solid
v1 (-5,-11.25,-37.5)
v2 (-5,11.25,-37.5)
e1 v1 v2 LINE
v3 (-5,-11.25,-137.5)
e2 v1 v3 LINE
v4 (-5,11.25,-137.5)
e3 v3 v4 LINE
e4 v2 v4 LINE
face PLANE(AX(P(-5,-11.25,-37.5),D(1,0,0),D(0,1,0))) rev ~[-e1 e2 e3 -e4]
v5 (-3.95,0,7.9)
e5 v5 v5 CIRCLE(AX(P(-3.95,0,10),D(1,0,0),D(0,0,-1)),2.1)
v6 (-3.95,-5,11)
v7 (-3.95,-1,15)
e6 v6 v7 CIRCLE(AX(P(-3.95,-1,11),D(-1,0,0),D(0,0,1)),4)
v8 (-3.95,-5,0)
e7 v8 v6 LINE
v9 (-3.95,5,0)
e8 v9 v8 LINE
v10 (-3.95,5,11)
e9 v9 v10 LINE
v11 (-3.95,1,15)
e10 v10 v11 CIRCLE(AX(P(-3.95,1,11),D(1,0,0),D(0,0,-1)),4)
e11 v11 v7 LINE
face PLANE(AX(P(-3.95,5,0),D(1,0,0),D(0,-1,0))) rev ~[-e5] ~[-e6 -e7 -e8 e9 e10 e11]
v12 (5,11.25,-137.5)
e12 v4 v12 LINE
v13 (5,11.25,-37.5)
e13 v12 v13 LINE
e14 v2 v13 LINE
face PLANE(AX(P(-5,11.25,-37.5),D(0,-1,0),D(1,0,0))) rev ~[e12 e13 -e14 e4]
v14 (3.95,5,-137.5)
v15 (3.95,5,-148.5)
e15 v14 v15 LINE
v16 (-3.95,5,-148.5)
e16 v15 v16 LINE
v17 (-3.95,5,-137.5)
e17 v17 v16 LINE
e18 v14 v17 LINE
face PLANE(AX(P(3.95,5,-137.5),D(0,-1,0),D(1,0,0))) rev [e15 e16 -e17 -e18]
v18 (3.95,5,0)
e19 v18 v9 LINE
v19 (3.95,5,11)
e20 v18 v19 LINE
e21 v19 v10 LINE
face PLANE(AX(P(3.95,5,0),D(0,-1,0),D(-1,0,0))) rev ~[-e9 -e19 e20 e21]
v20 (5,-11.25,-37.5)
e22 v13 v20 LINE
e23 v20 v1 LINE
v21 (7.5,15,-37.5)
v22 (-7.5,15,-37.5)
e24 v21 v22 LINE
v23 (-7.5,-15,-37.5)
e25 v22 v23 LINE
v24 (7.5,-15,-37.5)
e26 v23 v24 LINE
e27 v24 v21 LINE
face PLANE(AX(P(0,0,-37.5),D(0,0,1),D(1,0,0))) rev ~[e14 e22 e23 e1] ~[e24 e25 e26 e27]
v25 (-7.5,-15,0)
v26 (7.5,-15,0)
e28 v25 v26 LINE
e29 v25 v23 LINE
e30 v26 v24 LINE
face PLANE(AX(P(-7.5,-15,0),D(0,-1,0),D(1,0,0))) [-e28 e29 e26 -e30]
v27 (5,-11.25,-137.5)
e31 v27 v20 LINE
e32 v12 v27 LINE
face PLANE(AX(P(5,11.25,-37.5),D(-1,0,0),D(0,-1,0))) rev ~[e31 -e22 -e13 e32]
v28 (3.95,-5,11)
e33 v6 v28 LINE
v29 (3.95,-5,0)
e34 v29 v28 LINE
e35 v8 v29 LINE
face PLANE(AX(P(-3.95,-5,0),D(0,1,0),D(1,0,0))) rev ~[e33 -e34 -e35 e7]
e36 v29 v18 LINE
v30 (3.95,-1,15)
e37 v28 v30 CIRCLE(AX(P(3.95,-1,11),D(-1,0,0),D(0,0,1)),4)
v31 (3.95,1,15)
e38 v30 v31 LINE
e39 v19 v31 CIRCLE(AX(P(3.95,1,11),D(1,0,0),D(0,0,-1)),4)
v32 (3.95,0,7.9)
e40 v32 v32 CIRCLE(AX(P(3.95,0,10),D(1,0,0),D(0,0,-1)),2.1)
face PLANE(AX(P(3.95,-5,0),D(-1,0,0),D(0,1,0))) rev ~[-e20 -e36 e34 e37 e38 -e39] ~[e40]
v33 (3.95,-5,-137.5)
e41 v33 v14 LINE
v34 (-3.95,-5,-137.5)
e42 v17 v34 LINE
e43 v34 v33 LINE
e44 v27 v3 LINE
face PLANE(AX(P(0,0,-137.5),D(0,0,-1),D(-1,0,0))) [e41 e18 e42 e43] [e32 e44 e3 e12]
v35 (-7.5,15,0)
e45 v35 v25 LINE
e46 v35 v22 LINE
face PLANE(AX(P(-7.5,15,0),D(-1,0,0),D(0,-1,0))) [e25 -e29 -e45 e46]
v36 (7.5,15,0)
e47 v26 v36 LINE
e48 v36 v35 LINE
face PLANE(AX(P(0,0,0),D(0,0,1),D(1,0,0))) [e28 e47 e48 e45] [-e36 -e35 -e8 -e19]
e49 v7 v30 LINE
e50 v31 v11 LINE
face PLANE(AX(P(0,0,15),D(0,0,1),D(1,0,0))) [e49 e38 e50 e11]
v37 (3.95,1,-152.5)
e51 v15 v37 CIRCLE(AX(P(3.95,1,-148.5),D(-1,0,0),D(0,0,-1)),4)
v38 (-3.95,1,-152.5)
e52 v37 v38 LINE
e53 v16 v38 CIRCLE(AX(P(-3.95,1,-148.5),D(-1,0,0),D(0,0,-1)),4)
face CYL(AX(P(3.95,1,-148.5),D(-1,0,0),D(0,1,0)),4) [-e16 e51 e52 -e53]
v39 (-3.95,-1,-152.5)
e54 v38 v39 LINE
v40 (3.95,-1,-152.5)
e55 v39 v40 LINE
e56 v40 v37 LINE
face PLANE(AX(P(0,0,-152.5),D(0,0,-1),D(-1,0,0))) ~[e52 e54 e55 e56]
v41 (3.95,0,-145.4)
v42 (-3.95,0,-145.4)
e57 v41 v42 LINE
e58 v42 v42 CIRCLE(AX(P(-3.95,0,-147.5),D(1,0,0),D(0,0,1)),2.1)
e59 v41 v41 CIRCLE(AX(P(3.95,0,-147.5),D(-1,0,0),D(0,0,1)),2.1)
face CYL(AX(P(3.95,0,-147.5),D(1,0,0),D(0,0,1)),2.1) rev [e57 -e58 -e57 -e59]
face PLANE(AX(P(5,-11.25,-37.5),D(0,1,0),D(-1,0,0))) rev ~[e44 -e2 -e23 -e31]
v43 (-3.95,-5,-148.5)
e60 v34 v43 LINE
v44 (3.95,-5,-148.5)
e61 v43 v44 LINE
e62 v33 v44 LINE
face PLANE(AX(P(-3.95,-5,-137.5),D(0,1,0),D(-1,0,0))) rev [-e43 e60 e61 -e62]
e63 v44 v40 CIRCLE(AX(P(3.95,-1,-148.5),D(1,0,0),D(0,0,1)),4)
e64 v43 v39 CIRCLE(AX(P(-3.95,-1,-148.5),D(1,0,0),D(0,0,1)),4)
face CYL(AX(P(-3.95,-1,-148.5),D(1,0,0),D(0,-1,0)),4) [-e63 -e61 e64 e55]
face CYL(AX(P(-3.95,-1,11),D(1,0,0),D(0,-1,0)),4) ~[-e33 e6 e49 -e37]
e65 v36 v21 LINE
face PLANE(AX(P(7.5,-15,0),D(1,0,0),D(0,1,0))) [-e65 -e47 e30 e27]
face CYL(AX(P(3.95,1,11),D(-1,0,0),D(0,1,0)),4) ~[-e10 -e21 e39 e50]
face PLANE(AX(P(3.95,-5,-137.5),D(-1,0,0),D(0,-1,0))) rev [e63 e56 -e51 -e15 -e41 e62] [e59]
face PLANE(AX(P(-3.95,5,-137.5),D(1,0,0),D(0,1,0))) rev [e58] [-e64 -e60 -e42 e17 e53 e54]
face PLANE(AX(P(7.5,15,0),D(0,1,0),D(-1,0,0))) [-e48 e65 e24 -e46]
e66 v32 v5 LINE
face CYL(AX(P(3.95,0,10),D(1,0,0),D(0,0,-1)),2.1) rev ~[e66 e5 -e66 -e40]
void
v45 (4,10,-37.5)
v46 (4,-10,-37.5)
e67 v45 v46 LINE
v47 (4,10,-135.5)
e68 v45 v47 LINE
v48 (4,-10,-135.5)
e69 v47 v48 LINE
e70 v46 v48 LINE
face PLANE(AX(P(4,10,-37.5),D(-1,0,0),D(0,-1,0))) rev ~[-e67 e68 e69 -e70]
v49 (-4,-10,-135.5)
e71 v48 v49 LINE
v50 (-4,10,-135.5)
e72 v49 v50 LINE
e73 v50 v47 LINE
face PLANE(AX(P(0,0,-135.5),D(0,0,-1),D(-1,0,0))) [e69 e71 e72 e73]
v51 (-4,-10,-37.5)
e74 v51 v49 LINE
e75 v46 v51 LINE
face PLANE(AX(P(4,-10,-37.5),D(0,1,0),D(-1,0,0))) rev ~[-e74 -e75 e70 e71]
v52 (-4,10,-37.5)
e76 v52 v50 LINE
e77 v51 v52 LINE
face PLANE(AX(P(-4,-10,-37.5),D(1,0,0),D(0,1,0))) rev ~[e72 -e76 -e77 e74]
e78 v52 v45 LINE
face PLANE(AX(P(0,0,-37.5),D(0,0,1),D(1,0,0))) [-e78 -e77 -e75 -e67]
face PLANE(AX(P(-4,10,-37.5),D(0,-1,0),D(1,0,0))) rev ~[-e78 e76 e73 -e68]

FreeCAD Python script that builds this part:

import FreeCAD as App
import Part
import Sketcher


def edges_at(feature, points):
    """Names of the edges that pass closest to the given points."""
    edges = feature.Shape.Edges
    near = lambda p: min(range(len(edges)), key=lambda i: edges[i].distToShape(Part.Vertex(*p))[0])
    return sorted({f"Edge{near(p) + 1}" for p in points})

doc = App.newDocument("Part")
body = doc.addObject("PartDesign::Body", "Body")

# Sketch on XY plane
sketch1 = body.newObject("Sketcher::SketchObject", "Sketch")
sketch1.AttachmentSupport = (doc.getObject("XY_Plane"), [""])
sketch1.MapMode = "FlatFace"
sketch1.addGeometry([
    Part.LineSegment(App.Vector(-7.5, 15, 0), App.Vector(-7.5, -15, 0)),
    Part.LineSegment(App.Vector(-7.5, -15, 0), App.Vector(7.5, -15, 0)),
    Part.LineSegment(App.Vector(7.5, -15, 0), App.Vector(7.5, 15, 0)),
    Part.LineSegment(App.Vector(7.5, 15, 0), App.Vector(-7.5, 15, 0)),
], False)
sketch1.addConstraint([
    Sketcher.Constraint("Coincident", 0, 2, 1, 1),
    Sketcher.Constraint("Coincident", 1, 2, 2, 1),
    Sketcher.Constraint("Coincident", 2, 2, 3, 1),
    Sketcher.Constraint("Coincident", 3, 2, 0, 1),
    Sketcher.Constraint("Vertical", 0),
    Sketcher.Constraint("Horizontal", 1),
    Sketcher.Constraint("Vertical", 2),
    Sketcher.Constraint("Horizontal", 3),
    Sketcher.Constraint("Symmetric", 0, 2, 2, 2, -1, 1),
    Sketcher.Constraint("DistanceX", 1, 1, 1, 2, 15.0),
    Sketcher.Constraint("DistanceY", 0, 2, 0, 1, 30.0),
])
pad1 = body.newObject("PartDesign::Pad", "Pad")
pad1.Profile = sketch1
pad1.Length = 37.5
pad1.Reversed = True

# Sketch on XY plane
sketch2 = body.newObject("Sketcher::SketchObject", "Sketch001")
sketch2.AttachmentSupport = (doc.getObject("XY_Plane"), [""])
sketch2.MapMode = "FlatFace"
sketch2.AttachmentOffset = App.Placement(App.Vector(0, 0, -37.5), App.Rotation())
sketch2.addGeometry([
    Part.LineSegment(App.Vector(-5, -11.25, 0), App.Vector(-5, 11.25, 0)),  # 0
    Part.LineSegment(App.Vector(-5, 11.25, 0), App.Vector(5, 11.25, 0)),  # 1
    Part.LineSegment(App.Vector(5, 11.25, 0), App.Vector(5, -11.25, 0)),  # 2
    Part.LineSegment(App.Vector(5, -11.25, 0), App.Vector(-5, -11.25, 0)),  # 3
    Part.LineSegment(App.Vector(-4, -10, 0), App.Vector(4, -10, 0)),  # 4
    Part.LineSegment(App.Vector(4, -10, 0), App.Vector(4, 10, 0)),  # 5
    Part.LineSegment(App.Vector(4, 10, 0), App.Vector(-4, 10, 0)),  # 6
    Part.LineSegment(App.Vector(-4, 10, 0), App.Vector(-4, -10, 0)),  # 7
], False)
sketch2.addConstraint([
    Sketcher.Constraint("Coincident", 0, 2, 1, 1),
    Sketcher.Constraint("Coincident", 1, 2, 2, 1),
    Sketcher.Constraint("Coincident", 2, 2, 3, 1),
    Sketcher.Constraint("Coincident", 3, 2, 0, 1),
    Sketcher.Constraint("Coincident", 4, 2, 5, 1),
    Sketcher.Constraint("Coincident", 5, 2, 6, 1),
    Sketcher.Constraint("Coincident", 6, 2, 7, 1),
    Sketcher.Constraint("Coincident", 7, 2, 4, 1),
    Sketcher.Constraint("Vertical", 0),
    Sketcher.Constraint("Horizontal", 1),
    Sketcher.Constraint("Vertical", 2),
    Sketcher.Constraint("Horizontal", 3),
    Sketcher.Constraint("Horizontal", 4),
    Sketcher.Constraint("Vertical", 5),
    Sketcher.Constraint("Horizontal", 6),
    Sketcher.Constraint("Vertical", 7),
    Sketcher.Constraint("Symmetric", 0, 2, 2, 2, -1, 1),
    Sketcher.Constraint("Symmetric", 4, 2, 6, 2, -1, 1),
    Sketcher.Constraint("DistanceX", 1, 1, 1, 2, 10.0),
    Sketcher.Constraint("DistanceX", 4, 1, 4, 2, 8.0),
    Sketcher.Constraint("DistanceY", 5, 1, 5, 2, 20.0),
    Sketcher.Constraint("DistanceY", 0, 1, 0, 2, 22.5),
])
pad2 = body.newObject("PartDesign::Pad", "Pad001")
pad2.Profile = sketch2
pad2.Length = 100
pad2.Reversed = True

# Sketch on XY plane
sketch3 = body.newObject("Sketcher::SketchObject", "Sketch002")
sketch3.AttachmentSupport = (doc.getObject("XY_Plane"), [""])
sketch3.MapMode = "FlatFace"
sketch3.addGeometry([
    Part.LineSegment(App.Vector(-3.95, 5, 0), App.Vector(-3.95, -5, 0)),
    Part.LineSegment(App.Vector(-3.95, -5, 0), App.Vector(3.95, -5, 0)),
    Part.LineSegment(App.Vector(3.95, -5, 0), App.Vector(3.95, 5, 0)),
    Part.LineSegment(App.Vector(3.95, 5, 0), App.Vector(-3.95, 5, 0)),
], False)
sketch3.addConstraint([
    Sketcher.Constraint("Coincident", 0, 2, 1, 1),
    Sketcher.Constraint("Coincident", 1, 2, 2, 1),
    Sketcher.Constraint("Coincident", 2, 2, 3, 1),
    Sketcher.Constraint("Coincident", 3, 2, 0, 1),
    Sketcher.Constraint("Vertical", 0),
    Sketcher.Constraint("Horizontal", 1),
    Sketcher.Constraint("Vertical", 2),
    Sketcher.Constraint("Horizontal", 3),
    Sketcher.Constraint("Symmetric", 0, 2, 2, 2, -1, 1),
    Sketcher.Constraint("DistanceY", 0, 2, 0, 1, 10.0),
    Sketcher.Constraint("DistanceX", 1, 1, 1, 2, 7.9),
])
pad3 = body.newObject("PartDesign::Pad", "Pad002")
pad3.Profile = sketch3
pad3.Length = 15

# Sketch on YZ plane
sketch4 = body.newObject("Sketcher::SketchObject", "Sketch003")
sketch4.AttachmentSupport = (doc.getObject("YZ_Plane"), [""])
sketch4.MapMode = "FlatFace"
sketch4.AttachmentOffset = App.Placement(App.Vector(0, 0, 3.95), App.Rotation())
sketch4.addGeometry(Part.Circle(App.Vector(0, 10, 0), App.Vector(0, 0, 1), 2.1), False)
sketch4.addConstraint([
    Sketcher.Constraint("PointOnObject", 0, 3, -2),
    Sketcher.Constraint("Diameter", 0, 4.2),
    Sketcher.Constraint("DistanceY", -1, 1, 0, 3, 10.0),
])
pocket1 = body.newObject("PartDesign::Pocket", "Pocket")
pocket1.Profile = sketch4
pocket1.Length = 15

# Sketch on XY plane
sketch5 = body.newObject("Sketcher::SketchObject", "Sketch004")
sketch5.AttachmentSupport = (doc.getObject("XY_Plane"), [""])
sketch5.MapMode = "FlatFace"
sketch5.AttachmentOffset = App.Placement(App.Vector(0, 0, -137.5), App.Rotation())
sketch5.addGeometry([
    Part.LineSegment(App.Vector(-5, 11.25, 0), App.Vector(5, 11.25, 0)),
    Part.LineSegment(App.Vector(5, 11.25, 0), App.Vector(5, -11.25, 0)),
    Part.LineSegment(App.Vector(5, -11.25, 0), App.Vector(-5, -11.25, 0)),
    Part.LineSegment(App.Vector(-5, -11.25, 0), App.Vector(-5, 11.25, 0)),
], False)
sketch5.addConstraint([
    Sketcher.Constraint("Coincident", 0, 2, 1, 1),
    Sketcher.Constraint("Coincident", 1, 2, 2, 1),
    Sketcher.Constraint("Coincident", 2, 2, 3, 1),
    Sketcher.Constraint("Coincident", 3, 2, 0, 1),
    Sketcher.Constraint("Horizontal", 0),
    Sketcher.Constraint("Vertical", 1),
    Sketcher.Constraint("Horizontal", 2),
    Sketcher.Constraint("Vertical", 3),
    Sketcher.Constraint("Symmetric", 0, 2, 2, 2, -1, 1),
    Sketcher.Constraint("DistanceX", 0, 1, 0, 2, 10.0),
    Sketcher.Constraint("DistanceY", 1, 2, 1, 1, 22.5),
])
pad4 = body.newObject("PartDesign::Pad", "Pad003")
pad4.Profile = sketch5
pad4.Length = 2
doc.recompute()

datumplane = body.newObject("PartDesign::Plane", "DatumPlane")
datumplane.AttachmentSupport = (doc.getObject("XY_Plane"), [""])
datumplane.MapMode = "FlatFace"
datumplane.AttachmentOffset = App.Placement(App.Vector(0, 0, -68.75), App.Rotation())
mirrored = body.newObject("PartDesign::Mirrored", "Mirrored")
mirrored.Originals = [pad3]
mirrored.MirrorPlane = (datumplane, [""])
body.Tip = mirrored
doc.recompute()

datumplane2 = body.newObject("PartDesign::Plane", "DatumPlane001")
datumplane2.AttachmentSupport = (doc.getObject("XY_Plane"), [""])
datumplane2.MapMode = "FlatFace"
datumplane2.AttachmentOffset = App.Placement(App.Vector(0, 0, -68.75), App.Rotation())
mirrored2 = body.newObject("PartDesign::Mirrored", "Mirrored001")
mirrored2.Originals = [pocket1]
mirrored2.MirrorPlane = (datumplane2, [""])
body.Tip = mirrored2
doc.recompute()

fillet = body.newObject("PartDesign::Fillet", "Fillet")
fillet.Base = (mirrored2, edges_at(mirrored2, [
    (0, -5, 15),
    (0, 5, 15),
    (0, -5, -152.5),
    (0, 5, -152.5),
]))
fillet.Radius = 4

doc.recompute()
